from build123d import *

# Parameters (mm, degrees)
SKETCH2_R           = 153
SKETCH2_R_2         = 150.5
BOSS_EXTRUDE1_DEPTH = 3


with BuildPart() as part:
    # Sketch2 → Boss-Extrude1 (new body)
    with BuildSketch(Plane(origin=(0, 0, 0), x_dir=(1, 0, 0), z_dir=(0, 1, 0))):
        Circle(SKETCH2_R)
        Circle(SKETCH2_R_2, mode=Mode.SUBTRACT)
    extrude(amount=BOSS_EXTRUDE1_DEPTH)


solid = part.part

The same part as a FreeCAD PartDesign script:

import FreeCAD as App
import Part
import Sketcher

V = App.Vector
Q = App.Units.Quantity

doc = App.newDocument("Part")
body = doc.addObject("PartDesign::Body", "Body")

sketch1 = body.newObject("Sketcher::SketchObject", "Sketch")
sketch1.AttachmentSupport = (doc.getObject("XZ_Plane"), [""])
sketch1.MapMode = "FlatFace"
sketch1.addGeometry(Part.Circle(V(0, 0, 0), V(0, 0, 1), 153), False)
sketch1.addGeometry(Part.Circle(V(0, 0, 0), V(0, 0, 1), 150), False)
sketch1.addConstraint(Sketcher.Constraint("Coincident", 0, 3, -1, 1))
sketch1.addConstraint(Sketcher.Constraint("Coincident", 1, 3, -1, 1))
sketch1.addConstraint(Sketcher.Constraint("Diameter", 0, Q("306 mm")))
sketch1.addConstraint(Sketcher.Constraint("Diameter", 1, Q("301 mm")))
pad1 = body.newObject("PartDesign::Pad", "Pad")
pad1.Profile = sketch1
pad1.Length = 3
pad1.Reversed = True

doc.recompute()
